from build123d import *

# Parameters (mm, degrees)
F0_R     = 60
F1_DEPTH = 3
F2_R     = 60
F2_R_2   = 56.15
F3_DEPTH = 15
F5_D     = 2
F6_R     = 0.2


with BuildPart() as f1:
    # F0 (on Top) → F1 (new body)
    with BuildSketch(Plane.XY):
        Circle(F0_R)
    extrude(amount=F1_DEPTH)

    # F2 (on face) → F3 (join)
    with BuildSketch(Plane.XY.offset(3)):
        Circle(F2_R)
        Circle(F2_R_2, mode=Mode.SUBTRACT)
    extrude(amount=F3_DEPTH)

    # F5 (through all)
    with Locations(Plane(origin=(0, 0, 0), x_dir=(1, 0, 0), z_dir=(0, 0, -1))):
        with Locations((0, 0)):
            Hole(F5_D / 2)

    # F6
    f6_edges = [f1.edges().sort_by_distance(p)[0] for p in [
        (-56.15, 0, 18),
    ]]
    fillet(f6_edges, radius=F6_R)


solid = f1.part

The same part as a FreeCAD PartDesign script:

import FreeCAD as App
import Part
import Sketcher
from FreeCAD import Vector


def edges_at(feature, points):
    """Names of the edges that pass closest to the given points."""
    edges = feature.Shape.Edges
    near = lambda p: min(range(len(edges)), key=lambda i: edges[i].distToShape(Part.Vertex(*p))[0])
    return sorted({f"Edge{near(p) + 1}" for p in points})

doc = App.newDocument("Part")
body = doc.addObject("PartDesign::Body", "Body")

# Sketch on XY plane
sketch1 = body.newObject("Sketcher::SketchObject", "Sketch")
sketch1.AttachmentSupport = (doc.getObject("XY_Plane"), [""])
sketch1.MapMode = "FlatFace"
sketch1.addGeometry(Part.Circle(Vector(0, 0, 0), Vector(0, 0, 1), 60), False)
sketch1.addConstraint(Sketcher.Constraint("Coincident", 0, 3, -1, 1))
sketch1.addConstraint(Sketcher.Constraint("Diameter", 0, 120.0))
pad1 = body.newObject("PartDesign::Pad", "Pad")
pad1.Profile = sketch1
pad1.Length = 3

# Sketch on XY plane
sketch2 = body.newObject("Sketcher::SketchObject", "Sketch001")
sketch2.AttachmentSupport = (doc.getObject("XY_Plane"), [""])
sketch2.MapMode = "FlatFace"
sketch2.AttachmentOffset = App.Placement(Vector(0, 0, 3), App.Rotation())
sketch2.addGeometry(Part.Circle(Vector(0, 0, 0), Vector(0, 0, 1), 60), False)
sketch2.addGeometry(Part.Circle(Vector(0, 0, 0), Vector(0, 0, 1), 56), False)
sketch2.addConstraint(Sketcher.Constraint("Coincident", 0, 3, -1, 1))
sketch2.addConstraint(Sketcher.Constraint("Coincident", 1, 3, -1, 1))
sketch2.addConstraint(Sketcher.Constraint("Diameter", 0, 120.0))
sketch2.addConstraint(Sketcher.Constraint("Diameter", 1, 112.3))
pad2 = body.newObject("PartDesign::Pad", "Pad001")
pad2.Profile = sketch2
pad2.Length = 15

# Sketch on XY plane
sketch3 = body.newObject("Sketcher::SketchObject", "Sketch002")
sketch3.AttachmentSupport = (doc.getObject("XY_Plane"), [""])
sketch3.MapMode = "FlatFace"
sketch3.addGeometry(Part.Circle(Vector(0, 0, 0), Vector(0, 0, 1), 1), False)
sketch3.addConstraint(Sketcher.Constraint("Coincident", 0, 3, -1, 1))
sketch3.addConstraint(Sketcher.Constraint("Diameter", 0, 2.0))
doc.recompute()
hole = body.newObject("PartDesign::Hole", "Hole")
hole.Profile = sketch3
hole.ThreadType = "None"
hole.Diameter = 2
hole.DepthType = "ThroughAll"
hole.Reversed = True
doc.recompute()

fillet = body.newObject("PartDesign::Fillet", "Fillet")
fillet.Base = (hole, edges_at(hole, [(-56.15, 0, 18)]))
fillet.Radius = 0.2

doc.recompute()
